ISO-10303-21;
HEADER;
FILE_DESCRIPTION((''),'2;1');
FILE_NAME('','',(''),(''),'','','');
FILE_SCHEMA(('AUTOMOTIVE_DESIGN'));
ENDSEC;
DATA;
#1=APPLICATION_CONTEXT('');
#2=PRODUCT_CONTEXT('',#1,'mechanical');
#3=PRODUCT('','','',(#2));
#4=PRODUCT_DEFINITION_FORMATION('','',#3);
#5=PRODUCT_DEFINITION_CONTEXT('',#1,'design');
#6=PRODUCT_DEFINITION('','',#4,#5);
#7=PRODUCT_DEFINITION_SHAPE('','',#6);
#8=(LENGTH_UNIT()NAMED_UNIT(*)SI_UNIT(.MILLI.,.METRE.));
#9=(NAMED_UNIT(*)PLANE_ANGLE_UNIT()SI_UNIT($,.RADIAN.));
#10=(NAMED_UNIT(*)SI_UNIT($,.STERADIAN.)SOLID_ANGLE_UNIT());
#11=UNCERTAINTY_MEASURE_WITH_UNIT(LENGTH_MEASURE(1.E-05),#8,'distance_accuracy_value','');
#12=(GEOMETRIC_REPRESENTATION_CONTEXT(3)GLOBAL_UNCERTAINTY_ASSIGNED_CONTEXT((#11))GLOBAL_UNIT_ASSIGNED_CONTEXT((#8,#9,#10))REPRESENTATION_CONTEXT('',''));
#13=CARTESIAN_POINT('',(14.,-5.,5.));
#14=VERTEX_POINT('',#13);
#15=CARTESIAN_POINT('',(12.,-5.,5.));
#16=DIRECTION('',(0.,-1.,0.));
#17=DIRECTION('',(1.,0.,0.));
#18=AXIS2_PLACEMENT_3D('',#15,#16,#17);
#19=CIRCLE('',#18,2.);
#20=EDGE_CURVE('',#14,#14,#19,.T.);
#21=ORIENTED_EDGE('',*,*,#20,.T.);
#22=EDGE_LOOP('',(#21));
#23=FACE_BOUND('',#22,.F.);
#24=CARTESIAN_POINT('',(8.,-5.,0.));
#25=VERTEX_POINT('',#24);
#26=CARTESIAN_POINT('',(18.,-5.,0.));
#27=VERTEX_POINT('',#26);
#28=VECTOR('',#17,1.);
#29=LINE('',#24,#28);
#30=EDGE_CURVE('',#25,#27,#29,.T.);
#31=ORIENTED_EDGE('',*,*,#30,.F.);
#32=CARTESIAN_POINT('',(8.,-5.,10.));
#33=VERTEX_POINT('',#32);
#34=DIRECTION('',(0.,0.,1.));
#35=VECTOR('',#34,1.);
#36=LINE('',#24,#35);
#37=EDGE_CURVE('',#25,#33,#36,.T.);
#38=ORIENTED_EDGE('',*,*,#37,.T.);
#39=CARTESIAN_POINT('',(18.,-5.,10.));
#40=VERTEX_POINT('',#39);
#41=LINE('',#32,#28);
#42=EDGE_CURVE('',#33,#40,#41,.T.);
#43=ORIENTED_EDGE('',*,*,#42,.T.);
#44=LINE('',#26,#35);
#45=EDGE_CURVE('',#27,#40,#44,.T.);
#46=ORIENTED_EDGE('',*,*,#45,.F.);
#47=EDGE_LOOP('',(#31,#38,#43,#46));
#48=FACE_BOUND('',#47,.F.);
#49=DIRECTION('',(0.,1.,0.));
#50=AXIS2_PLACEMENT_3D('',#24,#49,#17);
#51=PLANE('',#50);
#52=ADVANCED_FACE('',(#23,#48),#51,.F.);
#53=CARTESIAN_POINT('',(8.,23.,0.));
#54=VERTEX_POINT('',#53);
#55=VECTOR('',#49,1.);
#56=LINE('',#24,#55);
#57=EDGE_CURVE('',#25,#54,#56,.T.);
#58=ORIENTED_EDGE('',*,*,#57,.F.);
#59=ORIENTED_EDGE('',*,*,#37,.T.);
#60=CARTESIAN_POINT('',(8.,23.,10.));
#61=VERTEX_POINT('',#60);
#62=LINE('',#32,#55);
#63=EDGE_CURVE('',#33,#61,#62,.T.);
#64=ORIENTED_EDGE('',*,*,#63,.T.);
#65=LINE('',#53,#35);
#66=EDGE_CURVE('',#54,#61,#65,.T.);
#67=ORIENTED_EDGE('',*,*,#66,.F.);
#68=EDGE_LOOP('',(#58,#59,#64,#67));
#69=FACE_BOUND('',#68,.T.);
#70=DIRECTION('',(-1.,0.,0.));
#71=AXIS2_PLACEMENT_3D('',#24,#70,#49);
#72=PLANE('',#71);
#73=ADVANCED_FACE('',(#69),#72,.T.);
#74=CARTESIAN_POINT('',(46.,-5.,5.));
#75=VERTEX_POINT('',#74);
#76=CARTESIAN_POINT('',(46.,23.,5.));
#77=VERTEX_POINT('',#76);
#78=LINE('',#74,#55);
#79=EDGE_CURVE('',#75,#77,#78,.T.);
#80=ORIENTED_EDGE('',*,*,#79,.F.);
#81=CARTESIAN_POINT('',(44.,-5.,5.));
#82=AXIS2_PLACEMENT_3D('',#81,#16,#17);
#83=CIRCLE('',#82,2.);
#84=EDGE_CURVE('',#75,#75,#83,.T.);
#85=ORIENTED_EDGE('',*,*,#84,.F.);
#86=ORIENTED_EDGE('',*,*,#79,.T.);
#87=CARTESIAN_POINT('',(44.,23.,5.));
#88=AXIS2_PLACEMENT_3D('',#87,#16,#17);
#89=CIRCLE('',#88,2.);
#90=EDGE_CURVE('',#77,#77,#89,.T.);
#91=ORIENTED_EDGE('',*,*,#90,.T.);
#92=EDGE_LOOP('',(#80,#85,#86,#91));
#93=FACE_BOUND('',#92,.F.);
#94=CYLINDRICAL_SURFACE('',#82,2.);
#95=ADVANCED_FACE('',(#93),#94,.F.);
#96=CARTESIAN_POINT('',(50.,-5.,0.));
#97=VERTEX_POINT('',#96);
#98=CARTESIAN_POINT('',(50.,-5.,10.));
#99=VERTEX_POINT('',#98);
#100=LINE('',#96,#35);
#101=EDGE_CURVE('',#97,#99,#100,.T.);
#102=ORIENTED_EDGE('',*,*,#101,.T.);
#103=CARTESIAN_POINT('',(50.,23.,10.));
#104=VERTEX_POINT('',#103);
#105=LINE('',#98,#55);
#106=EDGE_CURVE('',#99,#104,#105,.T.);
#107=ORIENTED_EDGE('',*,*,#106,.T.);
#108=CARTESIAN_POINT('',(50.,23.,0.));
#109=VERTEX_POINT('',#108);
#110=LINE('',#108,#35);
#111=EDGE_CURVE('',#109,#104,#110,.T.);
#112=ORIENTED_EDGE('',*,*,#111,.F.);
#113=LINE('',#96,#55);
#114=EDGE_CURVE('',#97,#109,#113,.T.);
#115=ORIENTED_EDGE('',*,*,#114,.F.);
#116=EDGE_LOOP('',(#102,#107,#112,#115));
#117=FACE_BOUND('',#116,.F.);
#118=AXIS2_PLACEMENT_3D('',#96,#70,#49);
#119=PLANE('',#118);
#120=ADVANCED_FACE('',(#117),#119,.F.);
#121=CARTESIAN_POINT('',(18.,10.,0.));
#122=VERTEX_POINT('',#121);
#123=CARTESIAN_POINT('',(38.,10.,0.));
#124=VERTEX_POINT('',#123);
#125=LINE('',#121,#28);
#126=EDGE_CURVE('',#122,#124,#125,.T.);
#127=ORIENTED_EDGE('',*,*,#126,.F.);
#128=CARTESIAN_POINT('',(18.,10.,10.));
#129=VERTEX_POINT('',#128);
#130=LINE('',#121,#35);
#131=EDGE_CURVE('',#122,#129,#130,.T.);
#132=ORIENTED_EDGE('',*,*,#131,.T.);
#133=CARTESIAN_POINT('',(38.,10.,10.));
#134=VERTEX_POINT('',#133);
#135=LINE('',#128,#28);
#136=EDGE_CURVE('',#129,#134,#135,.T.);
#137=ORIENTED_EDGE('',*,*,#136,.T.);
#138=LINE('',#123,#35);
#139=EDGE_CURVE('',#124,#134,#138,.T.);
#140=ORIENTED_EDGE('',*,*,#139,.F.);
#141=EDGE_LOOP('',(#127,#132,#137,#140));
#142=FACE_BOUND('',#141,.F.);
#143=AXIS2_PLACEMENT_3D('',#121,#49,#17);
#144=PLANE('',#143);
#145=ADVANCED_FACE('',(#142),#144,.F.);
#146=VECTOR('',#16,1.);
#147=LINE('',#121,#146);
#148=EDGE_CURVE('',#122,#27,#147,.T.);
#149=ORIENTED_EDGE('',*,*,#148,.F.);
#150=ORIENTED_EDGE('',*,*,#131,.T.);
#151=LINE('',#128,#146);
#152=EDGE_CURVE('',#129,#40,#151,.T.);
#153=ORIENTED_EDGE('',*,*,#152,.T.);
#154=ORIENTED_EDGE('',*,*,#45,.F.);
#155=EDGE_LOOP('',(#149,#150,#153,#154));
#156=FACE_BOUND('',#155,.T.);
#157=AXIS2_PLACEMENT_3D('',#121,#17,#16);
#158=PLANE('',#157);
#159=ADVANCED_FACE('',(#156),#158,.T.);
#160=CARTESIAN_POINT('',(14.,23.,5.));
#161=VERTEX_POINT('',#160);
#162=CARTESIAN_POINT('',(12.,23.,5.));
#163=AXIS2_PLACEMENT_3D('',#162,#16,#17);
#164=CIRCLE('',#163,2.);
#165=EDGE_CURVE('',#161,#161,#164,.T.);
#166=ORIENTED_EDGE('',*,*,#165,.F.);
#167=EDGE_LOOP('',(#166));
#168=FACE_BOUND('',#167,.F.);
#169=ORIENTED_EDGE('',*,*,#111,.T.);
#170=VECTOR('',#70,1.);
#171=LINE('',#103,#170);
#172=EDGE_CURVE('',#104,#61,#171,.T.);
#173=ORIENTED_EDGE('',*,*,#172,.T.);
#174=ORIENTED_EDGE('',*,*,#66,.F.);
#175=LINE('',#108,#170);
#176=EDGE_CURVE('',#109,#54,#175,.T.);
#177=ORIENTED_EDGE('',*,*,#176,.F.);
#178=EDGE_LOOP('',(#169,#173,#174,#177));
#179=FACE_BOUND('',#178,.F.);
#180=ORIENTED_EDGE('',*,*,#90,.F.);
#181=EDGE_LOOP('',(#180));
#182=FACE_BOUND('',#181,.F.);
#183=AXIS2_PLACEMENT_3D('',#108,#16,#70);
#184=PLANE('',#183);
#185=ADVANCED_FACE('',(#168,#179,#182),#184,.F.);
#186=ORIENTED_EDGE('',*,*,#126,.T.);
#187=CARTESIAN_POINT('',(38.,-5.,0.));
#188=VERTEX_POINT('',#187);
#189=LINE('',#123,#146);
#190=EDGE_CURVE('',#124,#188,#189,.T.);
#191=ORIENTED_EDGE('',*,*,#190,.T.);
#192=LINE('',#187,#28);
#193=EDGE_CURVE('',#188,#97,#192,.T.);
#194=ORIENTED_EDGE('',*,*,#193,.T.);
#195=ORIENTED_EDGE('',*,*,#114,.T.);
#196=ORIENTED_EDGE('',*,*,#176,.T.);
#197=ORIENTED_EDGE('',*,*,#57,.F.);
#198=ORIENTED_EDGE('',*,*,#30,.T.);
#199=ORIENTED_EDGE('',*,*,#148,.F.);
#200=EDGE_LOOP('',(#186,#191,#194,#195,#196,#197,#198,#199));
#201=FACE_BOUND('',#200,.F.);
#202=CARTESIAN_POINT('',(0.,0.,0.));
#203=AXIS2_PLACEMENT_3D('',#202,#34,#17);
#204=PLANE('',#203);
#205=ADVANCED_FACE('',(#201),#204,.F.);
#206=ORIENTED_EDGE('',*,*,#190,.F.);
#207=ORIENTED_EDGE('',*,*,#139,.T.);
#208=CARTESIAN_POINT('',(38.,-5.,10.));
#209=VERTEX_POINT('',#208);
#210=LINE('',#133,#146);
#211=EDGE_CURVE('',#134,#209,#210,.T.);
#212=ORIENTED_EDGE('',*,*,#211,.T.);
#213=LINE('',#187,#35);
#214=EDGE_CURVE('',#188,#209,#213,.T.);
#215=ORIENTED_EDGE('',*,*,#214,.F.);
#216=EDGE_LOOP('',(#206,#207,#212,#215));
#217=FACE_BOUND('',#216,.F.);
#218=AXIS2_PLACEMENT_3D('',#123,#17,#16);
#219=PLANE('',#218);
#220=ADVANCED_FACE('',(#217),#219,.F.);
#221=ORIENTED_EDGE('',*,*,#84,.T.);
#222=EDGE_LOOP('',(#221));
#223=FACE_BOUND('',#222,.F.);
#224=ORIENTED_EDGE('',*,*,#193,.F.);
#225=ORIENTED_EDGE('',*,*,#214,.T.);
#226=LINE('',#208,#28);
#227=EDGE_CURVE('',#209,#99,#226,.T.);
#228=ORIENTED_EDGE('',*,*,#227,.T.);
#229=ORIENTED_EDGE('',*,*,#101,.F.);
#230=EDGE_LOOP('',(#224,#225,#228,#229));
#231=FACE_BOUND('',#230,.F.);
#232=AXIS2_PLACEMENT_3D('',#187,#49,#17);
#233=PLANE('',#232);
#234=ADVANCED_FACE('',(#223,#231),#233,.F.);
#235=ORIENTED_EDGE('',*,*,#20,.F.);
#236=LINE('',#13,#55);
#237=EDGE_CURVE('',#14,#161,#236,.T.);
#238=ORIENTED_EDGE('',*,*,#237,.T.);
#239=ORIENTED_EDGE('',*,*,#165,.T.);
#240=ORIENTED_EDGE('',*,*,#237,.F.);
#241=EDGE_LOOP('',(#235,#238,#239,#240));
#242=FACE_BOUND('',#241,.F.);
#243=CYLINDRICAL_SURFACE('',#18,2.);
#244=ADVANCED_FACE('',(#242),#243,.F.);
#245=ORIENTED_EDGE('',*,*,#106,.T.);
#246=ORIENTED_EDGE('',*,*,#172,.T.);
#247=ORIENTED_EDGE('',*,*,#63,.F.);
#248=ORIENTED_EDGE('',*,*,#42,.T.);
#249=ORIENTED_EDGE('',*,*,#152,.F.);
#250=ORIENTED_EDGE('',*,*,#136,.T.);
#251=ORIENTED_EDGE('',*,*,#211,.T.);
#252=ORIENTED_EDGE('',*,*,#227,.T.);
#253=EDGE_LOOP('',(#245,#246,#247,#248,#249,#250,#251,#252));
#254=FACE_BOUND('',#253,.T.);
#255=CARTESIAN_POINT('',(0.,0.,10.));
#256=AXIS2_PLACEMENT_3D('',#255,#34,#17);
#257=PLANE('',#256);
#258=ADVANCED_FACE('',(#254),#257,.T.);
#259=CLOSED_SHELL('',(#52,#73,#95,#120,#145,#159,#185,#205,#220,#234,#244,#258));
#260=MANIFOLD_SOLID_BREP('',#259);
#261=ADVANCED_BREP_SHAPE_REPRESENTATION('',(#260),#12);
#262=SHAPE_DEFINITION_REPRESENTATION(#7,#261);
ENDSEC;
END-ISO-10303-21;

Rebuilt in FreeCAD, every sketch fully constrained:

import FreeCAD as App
import Part
import Sketcher

V = App.Vector
Q = App.Units.Quantity

doc = App.newDocument("Part")
params = doc.addObject("Spreadsheet::Sheet", "Params")
for row, (alias, value) in enumerate([
    ("sketch1_width", "12 mm"),
    ("sketch1_width2", "42 mm"),
    ("sketch1_width3", "20 mm"),
    ("sketch1_height", "28 mm"),
    ("sketch1_height2", "15 mm"),
    ("pad1_length", "10 mm"),
    ("sketch2_diameter", "4 mm"),
    ("pocket1_length", "100 mm"),
], start=1):
    params.set(f"A{row}", alias)
    params.set(f"B{row}", "=" + value)
    params.setAlias(f"B{row}", alias)

body = doc.addObject("PartDesign::Body", "Body")

sketch1 = doc.addObject("Sketcher::SketchObject", "Sketch")
body.addObject(sketch1)
sketch1.AttachmentSupport = (doc.XY_Plane, [""])
sketch1.MapMode = "FlatFace"
sketch1.addGeometry([
    Part.LineSegment(V(38, -5, 0), V(50, -5, 0)),
    Part.LineSegment(V(50, -5, 0), V(50, 23, 0)),
    Part.LineSegment(V(50, 23, 0), V(8, 23, 0)),
    Part.LineSegment(V(8, 23, 0), V(8, -5, 0)),
    Part.LineSegment(V(8, -5, 0), V(18, -5, 0)),
    Part.LineSegment(V(18, -5, 0), V(18, 10, 0)),
    Part.LineSegment(V(18, 10, 0), V(38, 10, 0)),
    Part.LineSegment(V(38, 10, 0), V(38, -5, 0)),
], False)
sketch1.addConstraint([
    Sketcher.Constraint("Coincident", 0, 2, 1, 1),
    Sketcher.Constraint("Coincident", 1, 2, 2, 1),
    Sketcher.Constraint("Coincident", 2, 2, 3, 1),
    Sketcher.Constraint("Coincident", 3, 2, 4, 1),
    Sketcher.Constraint("Coincident", 4, 2, 5, 1),
    Sketcher.Constraint("Coincident", 5, 2, 6, 1),
    Sketcher.Constraint("Coincident", 6, 2, 7, 1),
    Sketcher.Constraint("Coincident", 7, 2, 0, 1),
    Sketcher.Constraint("Horizontal", 0),
    Sketcher.Constraint("Vertical", 1),
    Sketcher.Constraint("Horizontal", 2),
    Sketcher.Constraint("Vertical", 3),
    Sketcher.Constraint("Horizontal", 4),
    Sketcher.Constraint("Vertical", 5),
    Sketcher.Constraint("Horizontal", 6),
    Sketcher.Constraint("Vertical", 7),
    Sketcher.Constraint("Horizontal", 0, 2, 3, 2),
    Sketcher.Constraint("DistanceX", 0, 1, 0, 2, Q("12 mm")),
    Sketcher.Constraint("DistanceX", 2, 2, 2, 1, Q("42 mm")),
    Sketcher.Constraint("DistanceX", 6, 1, 6, 2, Q("20 mm")),
    Sketcher.Constraint("DistanceY", 1, 1, 1, 2, Q("28 mm")),
    Sketcher.Constraint("DistanceY", 5, 1, 5, 2, Q("15 mm")),
    Sketcher.Constraint("DistanceX", -1, 1, 0, 2, Q("50 mm")),
    Sketcher.Constraint("DistanceY", 0, 2, -1, 1, Q("5 mm")),
])
sketch1.setExpression("Constraints[17]", "Params.sketch1_width")
sketch1.setExpression("Constraints[18]", "Params.sketch1_width2")
sketch1.setExpression("Constraints[19]", "Params.sketch1_width3")
sketch1.setExpression("Constraints[20]", "Params.sketch1_height")
sketch1.setExpression("Constraints[21]", "Params.sketch1_height2")
pad1 = doc.addObject("PartDesign::Pad", "Pad")
body.addObject(pad1)
pad1.Profile = sketch1
pad1.setExpression("Length", "Params.pad1_length")

sketch2 = doc.addObject("Sketcher::SketchObject", "Sketch001")
body.addObject(sketch2)
sketch2.AttachmentSupport = (doc.XZ_Plane, [""])
sketch2.MapMode = "FlatFace"
sketch2.AttachmentOffset = App.Placement(V(0, 0, 5), App.Rotation())
sketch2.addGeometry([
    Part.Circle(V(12, 5, 0), V(0, 0, 1), 2),
    Part.Circle(V(44, 5, 0), V(0, 0, 1), 2),
], False)
sketch2.addConstraint([
    Sketcher.Constraint("Equal", 0, 1),
    Sketcher.Constraint("Horizontal", 0, 3, 1, 3),
    Sketcher.Constraint("Diameter", 0, Q("4 mm")),
    Sketcher.Constraint("DistanceY", -1, 1, 0, 3, Q("5 mm")),
    Sketcher.Constraint("DistanceX", -1, 1, 0, 3, Q("12 mm")),
    Sketcher.Constraint("DistanceX", -1, 1, 1, 3, Q("44 mm")),
])
sketch2.setExpression("Constraints[2]", "Params.sketch2_diameter")
pocket1 = doc.addObject("PartDesign::Pocket", "Pocket")
body.addObject(pocket1)
pocket1.Profile = sketch2
pocket1.setExpression("Length", "Params.pocket1_length")

doc.recompute()
